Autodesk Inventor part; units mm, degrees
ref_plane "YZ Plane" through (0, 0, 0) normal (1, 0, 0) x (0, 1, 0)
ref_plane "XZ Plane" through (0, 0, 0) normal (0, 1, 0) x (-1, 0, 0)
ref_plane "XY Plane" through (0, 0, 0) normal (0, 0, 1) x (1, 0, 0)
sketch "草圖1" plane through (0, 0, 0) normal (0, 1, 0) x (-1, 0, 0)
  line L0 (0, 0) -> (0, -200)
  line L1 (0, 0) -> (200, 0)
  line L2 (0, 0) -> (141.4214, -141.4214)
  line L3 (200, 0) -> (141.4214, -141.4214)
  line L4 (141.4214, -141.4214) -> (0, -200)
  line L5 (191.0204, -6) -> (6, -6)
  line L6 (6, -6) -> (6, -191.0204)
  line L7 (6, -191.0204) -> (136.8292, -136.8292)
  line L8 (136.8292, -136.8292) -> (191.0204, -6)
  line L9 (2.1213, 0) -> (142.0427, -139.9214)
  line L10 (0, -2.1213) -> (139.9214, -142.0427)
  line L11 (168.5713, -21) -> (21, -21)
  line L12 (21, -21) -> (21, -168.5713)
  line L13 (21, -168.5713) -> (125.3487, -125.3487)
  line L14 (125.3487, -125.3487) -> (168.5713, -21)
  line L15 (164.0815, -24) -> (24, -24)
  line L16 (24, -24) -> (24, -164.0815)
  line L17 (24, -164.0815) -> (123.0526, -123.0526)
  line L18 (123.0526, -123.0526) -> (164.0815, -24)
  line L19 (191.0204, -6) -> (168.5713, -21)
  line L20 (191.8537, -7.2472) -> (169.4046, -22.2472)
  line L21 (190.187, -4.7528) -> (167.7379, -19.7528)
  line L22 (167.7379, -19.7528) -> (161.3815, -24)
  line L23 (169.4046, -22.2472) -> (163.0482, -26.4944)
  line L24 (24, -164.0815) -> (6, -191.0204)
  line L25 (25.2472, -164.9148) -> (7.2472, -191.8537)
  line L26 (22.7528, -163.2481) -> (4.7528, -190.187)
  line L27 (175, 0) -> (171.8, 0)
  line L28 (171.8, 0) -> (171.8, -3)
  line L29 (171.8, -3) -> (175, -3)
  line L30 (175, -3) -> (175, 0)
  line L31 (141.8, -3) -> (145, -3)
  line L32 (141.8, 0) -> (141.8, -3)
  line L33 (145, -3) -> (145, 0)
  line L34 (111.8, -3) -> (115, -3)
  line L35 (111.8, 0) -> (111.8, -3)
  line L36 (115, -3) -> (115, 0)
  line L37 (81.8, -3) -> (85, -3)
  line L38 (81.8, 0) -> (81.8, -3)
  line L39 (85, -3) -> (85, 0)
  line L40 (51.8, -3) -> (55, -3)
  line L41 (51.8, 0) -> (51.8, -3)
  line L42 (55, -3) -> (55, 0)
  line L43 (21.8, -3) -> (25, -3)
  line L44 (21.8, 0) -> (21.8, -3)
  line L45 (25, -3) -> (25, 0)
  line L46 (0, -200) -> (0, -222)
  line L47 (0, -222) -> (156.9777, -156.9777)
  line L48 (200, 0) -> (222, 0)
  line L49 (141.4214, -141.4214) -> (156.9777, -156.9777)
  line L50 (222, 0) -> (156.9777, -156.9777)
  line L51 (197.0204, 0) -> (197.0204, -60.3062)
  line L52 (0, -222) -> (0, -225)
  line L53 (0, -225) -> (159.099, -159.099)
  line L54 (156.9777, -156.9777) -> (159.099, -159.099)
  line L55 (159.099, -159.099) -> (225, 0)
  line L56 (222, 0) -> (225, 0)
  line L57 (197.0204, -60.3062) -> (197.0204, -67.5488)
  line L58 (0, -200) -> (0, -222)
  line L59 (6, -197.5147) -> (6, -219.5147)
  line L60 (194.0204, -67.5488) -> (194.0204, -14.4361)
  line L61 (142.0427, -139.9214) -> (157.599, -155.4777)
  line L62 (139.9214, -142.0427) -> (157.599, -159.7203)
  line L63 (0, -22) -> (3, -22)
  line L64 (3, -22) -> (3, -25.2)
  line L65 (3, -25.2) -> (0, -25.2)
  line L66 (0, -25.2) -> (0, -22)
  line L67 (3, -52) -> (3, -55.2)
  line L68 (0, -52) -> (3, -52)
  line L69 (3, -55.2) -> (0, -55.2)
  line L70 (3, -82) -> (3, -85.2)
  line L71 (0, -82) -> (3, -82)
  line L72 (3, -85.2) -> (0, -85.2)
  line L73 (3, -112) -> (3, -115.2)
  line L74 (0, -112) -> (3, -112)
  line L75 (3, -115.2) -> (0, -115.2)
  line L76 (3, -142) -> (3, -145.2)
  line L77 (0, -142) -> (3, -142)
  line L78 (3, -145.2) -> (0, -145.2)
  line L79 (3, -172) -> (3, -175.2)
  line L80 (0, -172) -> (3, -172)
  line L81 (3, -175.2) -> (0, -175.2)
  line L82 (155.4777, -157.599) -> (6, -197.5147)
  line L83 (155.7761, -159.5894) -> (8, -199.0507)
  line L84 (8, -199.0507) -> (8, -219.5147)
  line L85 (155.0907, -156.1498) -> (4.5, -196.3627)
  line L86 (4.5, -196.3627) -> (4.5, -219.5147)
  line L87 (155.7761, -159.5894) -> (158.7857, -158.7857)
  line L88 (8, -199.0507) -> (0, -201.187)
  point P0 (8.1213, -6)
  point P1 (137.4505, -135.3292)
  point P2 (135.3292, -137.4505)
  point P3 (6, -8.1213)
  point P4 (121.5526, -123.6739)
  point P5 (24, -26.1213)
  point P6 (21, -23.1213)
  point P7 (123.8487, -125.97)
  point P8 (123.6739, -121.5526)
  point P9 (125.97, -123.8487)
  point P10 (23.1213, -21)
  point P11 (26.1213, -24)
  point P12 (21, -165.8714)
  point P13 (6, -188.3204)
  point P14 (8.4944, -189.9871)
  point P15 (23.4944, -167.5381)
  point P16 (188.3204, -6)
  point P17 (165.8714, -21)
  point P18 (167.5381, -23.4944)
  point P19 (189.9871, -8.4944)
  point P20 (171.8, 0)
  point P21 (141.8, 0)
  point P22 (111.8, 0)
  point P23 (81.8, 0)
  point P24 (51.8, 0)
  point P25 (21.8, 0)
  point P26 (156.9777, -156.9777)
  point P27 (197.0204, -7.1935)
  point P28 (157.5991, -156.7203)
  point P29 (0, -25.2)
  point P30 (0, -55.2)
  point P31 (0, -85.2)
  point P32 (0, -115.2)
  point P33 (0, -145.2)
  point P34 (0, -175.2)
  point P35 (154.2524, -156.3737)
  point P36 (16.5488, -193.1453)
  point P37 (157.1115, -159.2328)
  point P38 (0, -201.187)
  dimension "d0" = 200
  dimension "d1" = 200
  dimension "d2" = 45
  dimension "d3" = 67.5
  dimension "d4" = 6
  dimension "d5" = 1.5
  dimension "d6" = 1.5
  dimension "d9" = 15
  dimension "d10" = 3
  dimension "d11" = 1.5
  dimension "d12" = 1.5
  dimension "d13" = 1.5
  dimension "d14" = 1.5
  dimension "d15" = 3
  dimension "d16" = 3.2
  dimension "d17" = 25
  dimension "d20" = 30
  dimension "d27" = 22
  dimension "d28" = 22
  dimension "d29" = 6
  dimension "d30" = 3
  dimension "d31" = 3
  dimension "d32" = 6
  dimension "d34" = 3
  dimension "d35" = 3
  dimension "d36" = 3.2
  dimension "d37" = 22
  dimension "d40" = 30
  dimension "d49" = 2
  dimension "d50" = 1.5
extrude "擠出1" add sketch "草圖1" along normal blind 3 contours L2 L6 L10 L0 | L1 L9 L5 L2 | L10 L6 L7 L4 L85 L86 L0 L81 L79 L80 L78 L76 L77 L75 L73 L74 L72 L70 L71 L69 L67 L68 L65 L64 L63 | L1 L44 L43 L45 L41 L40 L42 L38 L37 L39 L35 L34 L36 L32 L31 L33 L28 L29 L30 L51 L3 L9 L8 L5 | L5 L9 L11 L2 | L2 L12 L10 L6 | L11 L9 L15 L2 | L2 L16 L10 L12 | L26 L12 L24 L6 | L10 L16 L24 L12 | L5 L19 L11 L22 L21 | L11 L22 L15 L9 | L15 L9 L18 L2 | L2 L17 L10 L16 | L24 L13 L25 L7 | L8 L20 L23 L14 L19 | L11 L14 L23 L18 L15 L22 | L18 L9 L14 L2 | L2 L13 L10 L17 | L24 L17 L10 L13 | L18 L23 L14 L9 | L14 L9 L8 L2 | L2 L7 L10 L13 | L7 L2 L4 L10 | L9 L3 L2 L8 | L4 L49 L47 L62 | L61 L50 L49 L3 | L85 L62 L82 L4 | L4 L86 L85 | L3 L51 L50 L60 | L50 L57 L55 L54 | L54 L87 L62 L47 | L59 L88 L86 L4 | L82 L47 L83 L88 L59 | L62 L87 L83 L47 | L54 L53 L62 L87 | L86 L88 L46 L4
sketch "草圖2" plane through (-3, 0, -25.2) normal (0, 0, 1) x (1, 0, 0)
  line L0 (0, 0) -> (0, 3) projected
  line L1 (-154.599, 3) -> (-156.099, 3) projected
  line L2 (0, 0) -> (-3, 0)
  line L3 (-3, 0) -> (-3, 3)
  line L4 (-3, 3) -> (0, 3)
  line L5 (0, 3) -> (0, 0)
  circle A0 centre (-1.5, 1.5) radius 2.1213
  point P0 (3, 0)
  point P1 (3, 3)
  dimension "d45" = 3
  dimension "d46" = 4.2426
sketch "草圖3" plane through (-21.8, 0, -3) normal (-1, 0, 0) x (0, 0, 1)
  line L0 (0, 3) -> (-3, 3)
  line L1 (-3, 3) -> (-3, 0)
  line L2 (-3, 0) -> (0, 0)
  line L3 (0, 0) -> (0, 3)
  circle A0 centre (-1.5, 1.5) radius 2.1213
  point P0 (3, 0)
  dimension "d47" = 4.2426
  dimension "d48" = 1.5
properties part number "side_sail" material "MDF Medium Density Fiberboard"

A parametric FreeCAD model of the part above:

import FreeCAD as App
import Part
import Sketcher
from FreeCAD import Vector
Q = App.Units.Quantity


def add_polygon(sketch, points):
    """Adds a closed chain of lines whose ends are joined by coincident constraints."""
    first, n = sketch.GeometryCount, len(points)
    for a, b in zip(points, points[1:] + points[:1]):
        sketch.addGeometry(Part.LineSegment(App.Vector(*a, 0), App.Vector(*b, 0)), False)
    for i in range(n):
        sketch.addConstraint(Sketcher.Constraint("Coincident", first + i, 2, first + (i + 1) % n, 1))

doc = App.newDocument("Part")
body = doc.addObject("PartDesign::Body", "Body")

# Sketch on XZ plane
sketch1 = doc.addObject("Sketcher::SketchObject", "Sketch")
body.addObject(sketch1)
sketch1.AttachmentSupport = (doc.XZ_Plane, [""])
sketch1.MapMode = "FlatFace"
add_polygon(sketch1, [(0, 0), (0, -22), (-3, -22), (-3, -25.2), (0, -25.2), (0, -52), (-3, -52), (-3, -55.2), (0, -55.2), (0, -82), (-3, -82), (-3, -85.2), (0, -85.2), (0, -112), (-3, -112), (-3, -115.2), (0, -115.2), (0, -142), (-3, -142), (-3, -145.2), (0, -145.2), (0, -172), (-3, -172), (-3, -175.2), (0, -175.2), (0, -201.2), (-8, -199.1), (-155.8, -159.6), (-157.1, -159.2), (-157.6, -159.7), (-159.1, -159.1), (-197, -67.5), (-197, 0), (-175, 0), (-175, -3), (-171.8, -3), (-171.8, 0), (-145, 0), (-145, -3), (-141.8, -3), (-141.8, 0), (-115, 0), (-115, -3), (-111.8, -3), (-111.8, 0), (-85, 0), (-85, -3), (-81.8, -3), (-81.8, 0), (-55, 0), (-55, -3), (-51.8, -3), (-51.8, 0), (-25, 0), (-25, -3), (-21.8, -3), (-21.8, 0)])  # lines 0-56
add_polygon(sketch1, [(-6, -8.1), (-21, -23.1), (-21, -165.9), (-6, -188.3)])  # lines 57-60
add_polygon(sketch1, [(-135.3, -137.5), (-8.5, -190), (-23.5, -167.5), (-123.8, -126)])  # lines 61-64
add_polygon(sketch1, [(-16.5, -193.1), (-139.9, -142), (-154.3, -156.4)])  # lines 65-67
add_polygon(sketch1, [(-142, -139.9), (-194, -14.4), (-194, -67.5), (-157.6, -155.5)])  # lines 68-71
add_polygon(sketch1, [(-190, -8.5), (-137.5, -135.3), (-126, -123.8), (-167.5, -23.5), (-169.4, -22.2)])  # lines 72-76
add_polygon(sketch1, [(-8.1, -6), (-188.3, -6), (-167.7, -19.8), (-165.9, -21), (-23.1, -21)])  # lines 77-81
add_polygon(sketch1, [(-24, -26.1), (-121.6, -123.7), (-24, -164.1)])  # lines 82-84
add_polygon(sketch1, [(-164.1, -24), (-123.7, -121.6), (-26.1, -24)])  # lines 85-87
sketch1.addConstraint([
    Sketcher.Constraint("Vertical", 0),
    Sketcher.Constraint("Horizontal", 1),
    Sketcher.Constraint("Vertical", 2),
    Sketcher.Constraint("Horizontal", 3),
    Sketcher.Constraint("Vertical", 4),
    Sketcher.Constraint("Horizontal", 5),
    Sketcher.Constraint("Vertical", 6),
    Sketcher.Constraint("Horizontal", 7),
    Sketcher.Constraint("Vertical", 8),
    Sketcher.Constraint("Horizontal", 9),
    Sketcher.Constraint("Vertical", 10),
    Sketcher.Constraint("Horizontal", 11),
    Sketcher.Constraint("Vertical", 12),
    Sketcher.Constraint("Horizontal", 13),
    Sketcher.Constraint("Vertical", 14),
    Sketcher.Constraint("Horizontal", 15),
    Sketcher.Constraint("Vertical", 16),
    Sketcher.Constraint("Horizontal", 17),
    Sketcher.Constraint("Vertical", 18),
    Sketcher.Constraint("Horizontal", 19),
    Sketcher.Constraint("Vertical", 20),
    Sketcher.Constraint("Horizontal", 21),
    Sketcher.Constraint("Vertical", 22),
    Sketcher.Constraint("Horizontal", 23),
    Sketcher.Constraint("Vertical", 24),
    Sketcher.Constraint("Vertical", 31),
    Sketcher.Constraint("Horizontal", 32),
    Sketcher.Constraint("Vertical", 33),
    Sketcher.Constraint("Horizontal", 34),
    Sketcher.Constraint("Vertical", 35),
    Sketcher.Constraint("Horizontal", 36),
    Sketcher.Constraint("Vertical", 37),
    Sketcher.Constraint("Horizontal", 38),
    Sketcher.Constraint("Vertical", 39),
    Sketcher.Constraint("Horizontal", 40),
    Sketcher.Constraint("Vertical", 41),
    Sketcher.Constraint("Horizontal", 42),
    Sketcher.Constraint("Vertical", 43),
    Sketcher.Constraint("Horizontal", 44),
    Sketcher.Constraint("Vertical", 45),
    Sketcher.Constraint("Horizontal", 46),
    Sketcher.Constraint("Vertical", 47),
    Sketcher.Constraint("Horizontal", 48),
    Sketcher.Constraint("Vertical", 49),
    Sketcher.Constraint("Horizontal", 50),
    Sketcher.Constraint("Vertical", 51),
    Sketcher.Constraint("Horizontal", 52),
    Sketcher.Constraint("Vertical", 53),
    Sketcher.Constraint("Horizontal", 54),
    Sketcher.Constraint("Vertical", 55),
    Sketcher.Constraint("Horizontal", 56),
    Sketcher.Constraint("Vertical", 58),
    Sketcher.Constraint("Vertical", 60),
    Sketcher.Constraint("Vertical", 69),
    Sketcher.Constraint("Horizontal", 77),
    Sketcher.Constraint("Horizontal", 80),
    Sketcher.Constraint("Vertical", 84),
    Sketcher.Constraint("Horizontal", 87),
    Sketcher.Constraint("Coincident", 56, 2, -1, 1),
    Sketcher.Constraint("PointOnObject", 3, 2, -2),
    Sketcher.Constraint("PointOnObject", 7, 2, -2),
    Sketcher.Constraint("PointOnObject", 11, 2, -2),
    Sketcher.Constraint("PointOnObject", 15, 2, -2),
    Sketcher.Constraint("PointOnObject", 19, 2, -2),
    Sketcher.Constraint("PointOnObject", 23, 2, -2),
    Sketcher.Constraint("PointOnObject", 31, 2, -1),
    Sketcher.Constraint("PointOnObject", 35, 2, -1),
    Sketcher.Constraint("PointOnObject", 39, 2, -1),
    Sketcher.Constraint("PointOnObject", 43, 2, -1),
    Sketcher.Constraint("PointOnObject", 47, 2, -1),
    Sketcher.Constraint("PointOnObject", 51, 2, -1),
    Sketcher.Constraint("Parallel", 25, 26),
    Sketcher.Constraint("Parallel", 26, 27),
    Sketcher.Constraint("Parallel", 28, 57),
    Sketcher.Constraint("Parallel", 29, 61),
    Sketcher.Constraint("Parallel", 59, 62),
    Sketcher.Constraint("Parallel", 61, 63),
    Sketcher.Constraint("Parallel", 57, 64),
    Sketcher.Constraint("Parallel", 63, 65),
    Sketcher.Constraint("Parallel", 64, 66),
    Sketcher.Constraint("Parallel", 27, 67),
    Sketcher.Constraint("Parallel", 30, 68),
    Sketcher.Constraint("Parallel", 68, 70),
    Sketcher.Constraint("Parallel", 66, 71),
    Sketcher.Constraint("Parallel", 70, 72),
    Sketcher.Constraint("Parallel", 71, 73),
    Sketcher.Constraint("Parallel", 72, 74),
    Sketcher.Constraint("Parallel", 75, 76),
    Sketcher.Constraint("Parallel", 76, 78),
    Sketcher.Constraint("Parallel", 78, 79),
    Sketcher.Constraint("Parallel", 73, 81),
    Sketcher.Constraint("Parallel", 81, 82),
    Sketcher.Constraint("Parallel", 65, 83),
    Sketcher.Constraint("Parallel", 74, 85),
    Sketcher.Constraint("Parallel", 82, 86),
    Sketcher.Constraint("Horizontal", 34, 2, 37, 2),
    Sketcher.Constraint("Horizontal", 38, 2, 41, 2),
    Sketcher.Constraint("Horizontal", 42, 2, 45, 2),
    Sketcher.Constraint("Horizontal", 46, 2, 49, 2),
    Sketcher.Constraint("Horizontal", 50, 2, 53, 2),
    Sketcher.Constraint("Horizontal", 30, 2, 69, 2),
    Sketcher.Constraint("Vertical", 2, 2, 5, 2),
    Sketcher.Constraint("Vertical", 6, 2, 9, 2),
    Sketcher.Constraint("Vertical", 10, 2, 13, 2),
    Sketcher.Constraint("Vertical", 14, 2, 17, 2),
    Sketcher.Constraint("Vertical", 18, 2, 21, 2),
    Sketcher.Constraint("Vertical", 28, 2, 70, 2),
    Sketcher.Constraint("Equal", 34, 38),
    Sketcher.Constraint("Equal", 36, 40),
    Sketcher.Constraint("Equal", 38, 42),
    Sketcher.Constraint("Equal", 40, 44),
    Sketcher.Constraint("Equal", 42, 46),
    Sketcher.Constraint("Equal", 44, 48),
    Sketcher.Constraint("Equal", 46, 50),
    Sketcher.Constraint("Equal", 48, 52),
    Sketcher.Constraint("Equal", 50, 54),
    Sketcher.Constraint("Equal", 54, 2),
    Sketcher.Constraint("Equal", 52, 4),
    Sketcher.Constraint("Equal", 2, 6),
    Sketcher.Constraint("Equal", 4, 8),
    Sketcher.Constraint("Equal", 6, 10),
    Sketcher.Constraint("Equal", 8, 12),
    Sketcher.Constraint("Equal", 10, 14),
    Sketcher.Constraint("Equal", 12, 16),
    Sketcher.Constraint("Equal", 14, 18),
    Sketcher.Constraint("Equal", 16, 20),
    Sketcher.Constraint("Equal", 18, 22),
    Sketcher.Constraint("Equal", 23, 33),
    Sketcher.Constraint("Equal", 80, 58),
    Sketcher.Constraint("Equal", 77, 60),
    Sketcher.Constraint("Equal", 87, 84),
    Sketcher.Constraint("Equal", 59, 62),
    Sketcher.Constraint("Equal", 61, 72),
    Sketcher.Constraint("Equal", 64, 73),
    Sketcher.Constraint("Equal", 63, 74),
    Sketcher.Constraint("Equal", 76, 78),
    Sketcher.Constraint("Equal", 75, 79),
    Sketcher.Constraint("Equal", 57, 81),
    Sketcher.Constraint("DistanceX", 1, 2, 1, 1, Q("3 mm")),
    Sketcher.Constraint("DistanceY", 0, 2, 0, 1, Q("22 mm")),
    Sketcher.Constraint("Distance", 71, Q("22 mm")),
    Sketcher.Constraint("DistanceX", 34, 1, 34, 2, Q("3.2 mm")),
    Sketcher.Constraint("DistanceX", 52, 2, -1, 1, Q("25 mm")),
    Sketcher.Constraint("DistanceX", 59, 2, -1, 1, Q("6 mm")),
    Sketcher.Constraint("DistanceY", 77, 2, -1, 1, Q("6 mm")),
    Sketcher.Constraint("Angle", 70, Q("-67.5 deg")),
    Sketcher.Constraint("DistanceX", 36, 1, 36, 2, Q("26.8 mm")),
    Sketcher.Constraint("DistanceX", 25, 2, -1, 1, Q("8 mm")),
    Sketcher.Constraint("DistanceX", 57, 2, -1, 1, Q("21 mm")),
    Sketcher.Constraint("DistanceX", 83, 2, -1, 1, Q("24 mm")),
    Sketcher.Constraint("DistanceY", 86, 2, -1, 1, Q("24 mm")),
    Sketcher.Constraint("DistanceX", 80, 1, 80, 2, Q("142.75 mm")),
    Sketcher.Constraint("Angle", 26, Q("165.049 deg")),
    Sketcher.Constraint("Angle", 59, Q("-56.25 deg")),
    Sketcher.Constraint("DistanceY", 24, 2, 24, 1, Q("25.987 mm")),
    Sketcher.Constraint("DistanceY", 63, 2, -1, 1, Q("125.97 mm")),
    Sketcher.Constraint("DistanceX", 73, 2, -1, 1, Q("125.97 mm")),
    Sketcher.Constraint("Distance", 61, Q("137.285 mm")),
    Sketcher.Constraint("Distance", 66, Q("20.267 mm")),
    Sketcher.Constraint("Distance", 79, Q("2.245 mm")),
    Sketcher.Constraint("DistanceX", 32, 1, 32, 2, Q("22.0204 mm")),
    Sketcher.Constraint("DistanceX", 87, 2, 87, 1, Q("137.9602 mm")),
    Sketcher.Constraint("DistanceY", 31, 1, 31, 2, Q("67.5488 mm")),
    Sketcher.Constraint("DistanceX", 26, 2, -1, 1, Q("155.776 mm")),
    Sketcher.Constraint("DistanceX", 28, 2, -1, 1, Q("157.599 mm")),
    Sketcher.Constraint("DistanceX", 29, 2, -1, 1, Q("159.099 mm")),
    Sketcher.Constraint("DistanceX", 67, 2, -1, 1, Q("16.549 mm")),
    Sketcher.Constraint("DistanceX", 78, 2, -1, 1, Q("167.738 mm")),
    Sketcher.Constraint("DistanceY", 82, 2, -1, 1, Q("123.674 mm")),
    Sketcher.Constraint("DistanceX", 85, 2, -1, 1, Q("123.674 mm")),
    Sketcher.Constraint("Distance", 68, Q("135.8243 mm")),
    Sketcher.Constraint("DistanceY", 57, 2, -1, 1, Q("23.1213 mm")),
    Sketcher.Constraint("DistanceX", 61, 2, -1, 1, Q("8.4944 mm")),
    Sketcher.Constraint("DistanceY", 65, 2, -1, 1, Q("142.0427 mm")),
    Sketcher.Constraint("DistanceY", 72, 2, -1, 1, Q("135.3292 mm")),
])
pad1 = doc.addObject("PartDesign::Pad", "Pad")
body.addObject(pad1)
pad1.Profile = sketch1
pad1.Length = 3
pad1.Reversed = True

doc.recompute()
